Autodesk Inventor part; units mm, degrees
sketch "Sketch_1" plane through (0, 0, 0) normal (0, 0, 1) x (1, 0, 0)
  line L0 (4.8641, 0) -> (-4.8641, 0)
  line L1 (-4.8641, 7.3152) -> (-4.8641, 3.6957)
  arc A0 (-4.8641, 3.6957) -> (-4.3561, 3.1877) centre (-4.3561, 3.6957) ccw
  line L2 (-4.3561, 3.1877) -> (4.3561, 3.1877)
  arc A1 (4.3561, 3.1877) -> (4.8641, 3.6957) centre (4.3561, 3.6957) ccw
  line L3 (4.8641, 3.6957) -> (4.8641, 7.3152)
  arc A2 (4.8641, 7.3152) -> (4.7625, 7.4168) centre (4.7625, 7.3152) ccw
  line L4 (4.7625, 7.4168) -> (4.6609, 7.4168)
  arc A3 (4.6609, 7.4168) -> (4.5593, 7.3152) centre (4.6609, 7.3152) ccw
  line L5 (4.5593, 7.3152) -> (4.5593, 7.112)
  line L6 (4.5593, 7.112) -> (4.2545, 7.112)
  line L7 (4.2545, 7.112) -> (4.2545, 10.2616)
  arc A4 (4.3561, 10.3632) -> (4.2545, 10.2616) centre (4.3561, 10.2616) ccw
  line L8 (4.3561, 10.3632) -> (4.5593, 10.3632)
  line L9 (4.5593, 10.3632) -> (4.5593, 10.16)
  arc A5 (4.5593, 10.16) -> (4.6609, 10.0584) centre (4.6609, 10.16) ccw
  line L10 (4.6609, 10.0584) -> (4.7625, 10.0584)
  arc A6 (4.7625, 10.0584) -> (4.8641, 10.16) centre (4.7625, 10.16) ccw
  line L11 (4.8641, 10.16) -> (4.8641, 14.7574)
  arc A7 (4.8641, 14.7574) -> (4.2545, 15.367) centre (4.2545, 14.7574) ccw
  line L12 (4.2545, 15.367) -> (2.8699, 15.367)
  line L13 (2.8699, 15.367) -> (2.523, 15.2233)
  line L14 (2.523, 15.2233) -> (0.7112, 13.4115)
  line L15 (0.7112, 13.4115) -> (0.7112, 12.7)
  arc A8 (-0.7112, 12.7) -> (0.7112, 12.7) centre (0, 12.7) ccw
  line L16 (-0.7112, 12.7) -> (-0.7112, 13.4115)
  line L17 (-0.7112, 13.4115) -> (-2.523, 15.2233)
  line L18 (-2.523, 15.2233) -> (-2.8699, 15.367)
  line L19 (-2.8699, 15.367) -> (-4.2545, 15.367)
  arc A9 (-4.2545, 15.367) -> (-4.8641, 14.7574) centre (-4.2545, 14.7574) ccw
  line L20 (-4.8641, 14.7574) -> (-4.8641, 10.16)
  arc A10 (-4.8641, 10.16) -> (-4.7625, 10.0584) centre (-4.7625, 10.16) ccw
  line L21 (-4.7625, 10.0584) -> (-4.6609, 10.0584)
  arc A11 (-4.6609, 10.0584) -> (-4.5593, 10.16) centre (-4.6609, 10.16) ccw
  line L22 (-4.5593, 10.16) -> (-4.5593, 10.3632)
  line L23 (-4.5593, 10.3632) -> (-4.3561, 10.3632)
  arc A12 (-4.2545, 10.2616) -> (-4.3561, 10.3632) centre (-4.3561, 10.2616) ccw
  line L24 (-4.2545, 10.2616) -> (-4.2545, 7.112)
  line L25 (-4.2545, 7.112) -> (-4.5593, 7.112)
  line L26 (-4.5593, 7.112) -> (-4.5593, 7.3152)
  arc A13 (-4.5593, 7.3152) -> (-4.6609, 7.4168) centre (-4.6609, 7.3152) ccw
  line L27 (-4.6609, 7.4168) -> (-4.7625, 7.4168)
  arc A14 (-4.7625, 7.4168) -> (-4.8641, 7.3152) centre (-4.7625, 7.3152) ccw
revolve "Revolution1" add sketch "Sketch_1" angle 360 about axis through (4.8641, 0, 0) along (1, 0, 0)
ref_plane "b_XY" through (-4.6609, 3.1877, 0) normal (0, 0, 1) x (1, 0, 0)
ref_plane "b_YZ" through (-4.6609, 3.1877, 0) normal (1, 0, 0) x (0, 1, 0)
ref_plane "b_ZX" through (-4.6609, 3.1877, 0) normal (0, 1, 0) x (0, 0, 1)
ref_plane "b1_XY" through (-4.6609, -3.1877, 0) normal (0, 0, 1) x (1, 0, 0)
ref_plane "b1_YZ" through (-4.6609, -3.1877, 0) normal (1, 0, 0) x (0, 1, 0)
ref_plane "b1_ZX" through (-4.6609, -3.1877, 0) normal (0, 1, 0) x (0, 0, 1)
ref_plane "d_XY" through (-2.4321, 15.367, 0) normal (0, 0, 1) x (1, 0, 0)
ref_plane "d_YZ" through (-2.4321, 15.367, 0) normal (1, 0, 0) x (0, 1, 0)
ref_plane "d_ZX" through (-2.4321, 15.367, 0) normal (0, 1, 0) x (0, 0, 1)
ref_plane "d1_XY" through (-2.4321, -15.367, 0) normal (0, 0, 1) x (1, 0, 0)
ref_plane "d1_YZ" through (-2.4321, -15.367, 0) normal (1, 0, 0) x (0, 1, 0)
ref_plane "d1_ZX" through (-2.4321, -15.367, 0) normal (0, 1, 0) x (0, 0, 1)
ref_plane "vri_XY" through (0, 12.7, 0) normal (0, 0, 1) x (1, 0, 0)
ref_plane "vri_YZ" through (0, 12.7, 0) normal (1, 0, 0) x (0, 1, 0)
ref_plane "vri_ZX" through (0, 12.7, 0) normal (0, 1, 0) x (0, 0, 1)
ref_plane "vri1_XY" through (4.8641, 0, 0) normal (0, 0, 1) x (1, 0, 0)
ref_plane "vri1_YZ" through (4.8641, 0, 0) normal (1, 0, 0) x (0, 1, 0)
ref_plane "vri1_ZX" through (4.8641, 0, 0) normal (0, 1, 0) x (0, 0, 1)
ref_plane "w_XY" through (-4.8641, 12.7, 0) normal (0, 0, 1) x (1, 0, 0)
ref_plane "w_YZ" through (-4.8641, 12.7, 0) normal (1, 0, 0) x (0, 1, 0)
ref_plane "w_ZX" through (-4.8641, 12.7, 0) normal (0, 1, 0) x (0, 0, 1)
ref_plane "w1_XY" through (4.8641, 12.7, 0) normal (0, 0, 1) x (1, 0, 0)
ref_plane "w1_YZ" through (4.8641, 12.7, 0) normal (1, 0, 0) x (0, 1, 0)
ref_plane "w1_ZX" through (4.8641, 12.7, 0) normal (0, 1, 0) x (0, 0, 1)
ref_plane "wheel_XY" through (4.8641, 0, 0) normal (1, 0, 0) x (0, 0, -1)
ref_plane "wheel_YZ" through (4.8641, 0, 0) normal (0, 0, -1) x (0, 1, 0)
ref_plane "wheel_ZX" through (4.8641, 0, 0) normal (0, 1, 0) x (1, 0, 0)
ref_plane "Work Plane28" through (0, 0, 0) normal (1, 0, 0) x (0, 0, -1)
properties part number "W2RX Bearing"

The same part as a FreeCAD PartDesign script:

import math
import FreeCAD as App
import Part
import Sketcher

V = App.Vector
Q = App.Units.Quantity

doc = App.newDocument("Part")
body = doc.addObject("PartDesign::Body", "Body")

sketch1 = body.newObject("Sketcher::SketchObject", "Sketch")
sketch1.AttachmentSupport = (doc.getObject("XY_Plane"), [""])
sketch1.MapMode = "FlatFace"
sketch1.addGeometry([
    Part.ArcOfCircle(Part.Circle(V(-4.76, 7.32, 0), V(0, 0, 1), 0.1), math.radians(90), math.radians(180)),
    Part.LineSegment(V(-4.86, 7.32, 0), V(-4.86, 3.7, 0)),
    Part.ArcOfCircle(Part.Circle(V(-4.36, 3.7, 0), V(0, 0, 1), 0.51), math.radians(180), math.radians(270)),
    Part.LineSegment(V(-4.36, 3.19, 0), V(4.36, 3.19, 0)),
    Part.ArcOfCircle(Part.Circle(V(4.36, 3.7, 0), V(0, 0, 1), 0.51), math.radians(-90), math.radians(0)),
    Part.LineSegment(V(4.86, 3.7, 0), V(4.86, 7.32, 0)),
    Part.ArcOfCircle(Part.Circle(V(4.76, 7.32, 0), V(0, 0, 1), 0.1), math.radians(0), math.radians(90)),
    Part.LineSegment(V(4.76, 7.42, 0), V(4.66, 7.42, 0)),
    Part.ArcOfCircle(Part.Circle(V(4.66, 7.32, 0), V(0, 0, 1), 0.1), math.radians(90), math.radians(180)),
    Part.LineSegment(V(4.56, 7.32, 0), V(4.56, 7.11, 0)),
    Part.LineSegment(V(4.56, 7.11, 0), V(4.25, 7.11, 0)),
    Part.LineSegment(V(4.25, 7.11, 0), V(4.25, 10.26, 0)),
    Part.ArcOfCircle(Part.Circle(V(4.36, 10.26, 0), V(0, 0, 1), 0.1), math.radians(90), math.radians(180)),
    Part.LineSegment(V(4.36, 10.36, 0), V(4.56, 10.36, 0)),
    Part.LineSegment(V(4.56, 10.36, 0), V(4.56, 10.16, 0)),
    Part.ArcOfCircle(Part.Circle(V(4.66, 10.16, 0), V(0, 0, 1), 0.1), math.radians(180), math.radians(270)),
    Part.LineSegment(V(4.66, 10.06, 0), V(4.76, 10.06, 0)),
    Part.ArcOfCircle(Part.Circle(V(4.76, 10.16, 0), V(0, 0, 1), 0.1), math.radians(-90), math.radians(0)),
    Part.LineSegment(V(4.86, 10.16, 0), V(4.86, 14.76, 0)),
    Part.ArcOfCircle(Part.Circle(V(4.25, 14.76, 0), V(0, 0, 1), 0.61), math.radians(0), math.radians(90)),
    Part.LineSegment(V(4.25, 15.37, 0), V(2.87, 15.37, 0)),
    Part.LineSegment(V(2.87, 15.37, 0), V(2.52, 15.22, 0)),
    Part.LineSegment(V(2.52, 15.22, 0), V(0.71, 13.41, 0)),
    Part.LineSegment(V(0.71, 13.41, 0), V(0.71, 12.7, 0)),
    Part.ArcOfCircle(Part.Circle(V(0, 12.7, 0), V(0, 0, 1), 0.71), math.radians(180), math.radians(360)),
    Part.LineSegment(V(-0.71, 12.7, 0), V(-0.71, 13.41, 0)),
    Part.LineSegment(V(-0.71, 13.41, 0), V(-2.52, 15.22, 0)),
    Part.LineSegment(V(-2.52, 15.22, 0), V(-2.87, 15.37, 0)),
    Part.LineSegment(V(-2.87, 15.37, 0), V(-4.25, 15.37, 0)),
    Part.ArcOfCircle(Part.Circle(V(-4.25, 14.76, 0), V(0, 0, 1), 0.61), math.radians(90), math.radians(180)),
    Part.LineSegment(V(-4.86, 14.76, 0), V(-4.86, 10.16, 0)),
    Part.ArcOfCircle(Part.Circle(V(-4.76, 10.16, 0), V(0, 0, 1), 0.1), math.radians(180), math.radians(270)),
    Part.LineSegment(V(-4.76, 10.06, 0), V(-4.66, 10.06, 0)),
    Part.ArcOfCircle(Part.Circle(V(-4.66, 10.16, 0), V(0, 0, 1), 0.1), math.radians(-90), math.radians(0)),
    Part.LineSegment(V(-4.56, 10.16, 0), V(-4.56, 10.36, 0)),
    Part.LineSegment(V(-4.56, 10.36, 0), V(-4.36, 10.36, 0)),
    Part.ArcOfCircle(Part.Circle(V(-4.36, 10.26, 0), V(0, 0, 1), 0.1), math.radians(0), math.radians(90)),
    Part.LineSegment(V(-4.25, 10.26, 0), V(-4.25, 7.11, 0)),
    Part.LineSegment(V(-4.25, 7.11, 0), V(-4.56, 7.11, 0)),
    Part.LineSegment(V(-4.56, 7.11, 0), V(-4.56, 7.32, 0)),
    Part.ArcOfCircle(Part.Circle(V(-4.66, 7.32, 0), V(0, 0, 1), 0.1), math.radians(0), math.radians(90)),
    Part.LineSegment(V(-4.66, 7.42, 0), V(-4.76, 7.42, 0)),
], False)
sketch1.addConstraint([
    Sketcher.Constraint("Tangent", 0, 2, 1, 1),
    Sketcher.Constraint("Tangent", 1, 2, 2, 1),
    Sketcher.Constraint("Tangent", 2, 2, 3, 1),
    Sketcher.Constraint("Tangent", 3, 2, 4, 1),
    Sketcher.Constraint("Tangent", 4, 2, 5, 1),
    Sketcher.Constraint("Tangent", 5, 2, 6, 1),
    Sketcher.Constraint("Tangent", 6, 2, 7, 1),
    Sketcher.Constraint("Tangent", 7, 2, 8, 1),
    Sketcher.Constraint("Tangent", 8, 2, 9, 1),
    Sketcher.Constraint("Coincident", 9, 2, 10, 1),
    Sketcher.Constraint("Coincident", 10, 2, 11, 1),
    Sketcher.Constraint("Tangent", 11, 2, 12, 2),
    Sketcher.Constraint("Tangent", 12, 1, 13, 1),
    Sketcher.Constraint("Coincident", 13, 2, 14, 1),
    Sketcher.Constraint("Tangent", 14, 2, 15, 1),
    Sketcher.Constraint("Tangent", 15, 2, 16, 1),
    Sketcher.Constraint("Tangent", 16, 2, 17, 1),
    Sketcher.Constraint("Tangent", 17, 2, 18, 1),
    Sketcher.Constraint("Tangent", 18, 2, 19, 1),
    Sketcher.Constraint("Tangent", 19, 2, 20, 1),
    Sketcher.Constraint("Coincident", 20, 2, 21, 1),
    Sketcher.Constraint("Coincident", 21, 2, 22, 1),
    Sketcher.Constraint("Coincident", 22, 2, 23, 1),
    Sketcher.Constraint("Tangent", 23, 2, 24, 2),
    Sketcher.Constraint("Tangent", 24, 1, 25, 1),
    Sketcher.Constraint("Coincident", 25, 2, 26, 1),
    Sketcher.Constraint("Coincident", 26, 2, 27, 1),
    Sketcher.Constraint("Coincident", 27, 2, 28, 1),
    Sketcher.Constraint("Tangent", 28, 2, 29, 1),
    Sketcher.Constraint("Tangent", 29, 2, 30, 1),
    Sketcher.Constraint("Tangent", 30, 2, 31, 1),
    Sketcher.Constraint("Tangent", 31, 2, 32, 1),
    Sketcher.Constraint("Tangent", 32, 2, 33, 1),
    Sketcher.Constraint("Tangent", 33, 2, 34, 1),
    Sketcher.Constraint("Coincident", 34, 2, 35, 1),
    Sketcher.Constraint("Tangent", 35, 2, 36, 2),
    Sketcher.Constraint("Tangent", 36, 1, 37, 1),
    Sketcher.Constraint("Coincident", 37, 2, 38, 1),
    Sketcher.Constraint("Coincident", 38, 2, 39, 1),
    Sketcher.Constraint("Tangent", 39, 2, 40, 1),
    Sketcher.Constraint("Tangent", 40, 2, 41, 1),
    Sketcher.Constraint("Tangent", 41, 2, 0, 1),
    Sketcher.Constraint("Vertical", 1),
    Sketcher.Constraint("Horizontal", 3),
    Sketcher.Constraint("Vertical", 5),
    Sketcher.Constraint("Horizontal", 7),
    Sketcher.Constraint("Vertical", 9),
    Sketcher.Constraint("Horizontal", 10),
    Sketcher.Constraint("Vertical", 11),
    Sketcher.Constraint("Horizontal", 13),
    Sketcher.Constraint("Vertical", 14),
    Sketcher.Constraint("Horizontal", 16),
    Sketcher.Constraint("Vertical", 18),
    Sketcher.Constraint("Horizontal", 20),
    Sketcher.Constraint("Vertical", 23),
    Sketcher.Constraint("Vertical", 25),
    Sketcher.Constraint("Horizontal", 28),
    Sketcher.Constraint("Vertical", 30),
    Sketcher.Constraint("Horizontal", 32),
    Sketcher.Constraint("Vertical", 34),
    Sketcher.Constraint("Horizontal", 35),
    Sketcher.Constraint("Vertical", 37),
    Sketcher.Constraint("Horizontal", 38),
    Sketcher.Constraint("Vertical", 39),
    Sketcher.Constraint("Horizontal", 41),
    Sketcher.Constraint("Equal", 2, 4),
    Sketcher.Constraint("Equal", 0, 6),
    Sketcher.Constraint("Equal", 6, 8),
    Sketcher.Constraint("Equal", 8, 12),
    Sketcher.Constraint("Equal", 12, 15),
    Sketcher.Constraint("Equal", 15, 17),
    Sketcher.Constraint("Equal", 19, 29),
    Sketcher.Constraint("Equal", 17, 31),
    Sketcher.Constraint("Equal", 31, 33),
    Sketcher.Constraint("Equal", 33, 36),
    Sketcher.Constraint("Equal", 36, 40),
    Sketcher.Constraint("Symmetric", 0, 3, 6, 3, -2),
    Sketcher.Constraint("Symmetric", 19, 3, 29, 3, -2),
    Sketcher.Constraint("Symmetric", 15, 3, 33, 3, -2),
    Sketcher.Constraint("Symmetric", 12, 3, 36, 3, -2),
    Sketcher.Constraint("Symmetric", 22, 2, 25, 2, -2),
    Sketcher.Constraint("Symmetric", 21, 2, 26, 2, -2),
    Sketcher.Constraint("Symmetric", 9, 2, 38, 2, -2),
    Sketcher.Constraint("Perpendicular", 22, 26),
    Sketcher.Constraint("Vertical", 4, 3, 12, 3),
    Sketcher.Constraint("Vertical", 8, 3, 15, 3),
    Sketcher.Constraint("Vertical", 6, 3, 17, 3),
    Sketcher.Constraint("Vertical", 19, 3, 10, 2),
    Sketcher.Constraint("Equal", 20, 28),
    Sketcher.Constraint("Equal", 35, 9),
    Sketcher.Constraint("Equal", 9, 14),
    Sketcher.Constraint("Radius", 2, Q("0.02 in")),
    Sketcher.Constraint("Radius", 0, Q("0.004 in")),
    Sketcher.Constraint("Radius", 24, Q("0.028 in")),
    Sketcher.Constraint("DistanceY", -1, 1, 15, 3, Q("0.4 in")),
    Sketcher.Constraint("DistanceY", -1, 1, 24, 3, Q("0.5 in")),
    Sketcher.Constraint("DistanceX", 3, 1, 3, 2, Q("0.343 in")),
    Sketcher.Constraint("DistanceX", 7, 2, 7, 1, Q("0.004 in")),
    Sketcher.Constraint("DistanceY", 11, 1, 11, 2, Q("0.124 in")),
    Sketcher.Constraint("DistanceY", 18, 1, 18, 2, Q("0.181 in")),
    Sketcher.Constraint("DistanceY", 23, 2, 23, 1, Q("0.028 in")),
    Sketcher.Constraint("DistanceX", 20, 2, 20, 1, Q("0.0545 in")),
    Sketcher.Constraint("DistanceY", 1, 2, 1, 1, Q("0.1425 in")),
    Sketcher.Constraint("Distance", 21, 0.3755),
])
revolution = body.newObject("PartDesign::Revolution", "Revolution")
revolution.Profile = sketch1
revolution.ReferenceAxis = (sketch1, ["H_Axis"])
revolution.Angle = 360

doc.recompute()
